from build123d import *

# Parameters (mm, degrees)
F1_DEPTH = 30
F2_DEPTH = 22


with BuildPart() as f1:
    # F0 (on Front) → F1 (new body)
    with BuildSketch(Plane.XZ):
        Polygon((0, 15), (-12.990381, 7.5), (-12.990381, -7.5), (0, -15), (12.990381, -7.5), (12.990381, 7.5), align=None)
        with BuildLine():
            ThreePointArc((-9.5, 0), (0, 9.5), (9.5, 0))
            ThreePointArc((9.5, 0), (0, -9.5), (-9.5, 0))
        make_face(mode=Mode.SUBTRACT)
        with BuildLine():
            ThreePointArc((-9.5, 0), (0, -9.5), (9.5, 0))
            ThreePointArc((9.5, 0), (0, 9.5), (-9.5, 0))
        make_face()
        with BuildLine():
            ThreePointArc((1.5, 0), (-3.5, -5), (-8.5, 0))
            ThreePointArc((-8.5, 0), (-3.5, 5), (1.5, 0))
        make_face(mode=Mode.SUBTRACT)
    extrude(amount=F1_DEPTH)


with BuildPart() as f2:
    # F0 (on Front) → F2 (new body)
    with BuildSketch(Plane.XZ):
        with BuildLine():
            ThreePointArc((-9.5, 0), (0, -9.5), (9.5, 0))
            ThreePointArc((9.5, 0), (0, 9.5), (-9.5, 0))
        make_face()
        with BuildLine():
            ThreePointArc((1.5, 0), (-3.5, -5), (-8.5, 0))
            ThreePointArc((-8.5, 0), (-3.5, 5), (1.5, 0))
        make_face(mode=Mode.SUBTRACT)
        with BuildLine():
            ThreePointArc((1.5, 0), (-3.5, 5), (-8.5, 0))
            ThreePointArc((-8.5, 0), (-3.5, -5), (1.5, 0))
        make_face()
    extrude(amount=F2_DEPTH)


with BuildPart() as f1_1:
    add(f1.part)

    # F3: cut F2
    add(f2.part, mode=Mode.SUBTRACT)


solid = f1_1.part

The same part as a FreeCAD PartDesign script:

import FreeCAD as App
import Part
import Sketcher

V = App.Vector
Q = App.Units.Quantity


def add_polygon(sketch, points):
    """Adds a closed chain of lines whose ends are joined by coincident constraints."""
    first, n = sketch.GeometryCount, len(points)
    for a, b in zip(points, points[1:] + points[:1]):
        sketch.addGeometry(Part.LineSegment(App.Vector(*a, 0), App.Vector(*b, 0)), False)
    for i in range(n):
        sketch.addConstraint(Sketcher.Constraint("Coincident", first + i, 2, first + (i + 1) % n, 1))

doc = App.newDocument("Part")
body = doc.addObject("PartDesign::Body", "Body")

# Sketch on XZ plane
sketch1 = body.newObject("Sketcher::SketchObject", "Sketch")
sketch1.AttachmentSupport = (doc.getObject("XZ_Plane"), [""])
sketch1.MapMode = "FlatFace"
add_polygon(sketch1, [(0, 15), (-13, 8), (-13, -8), (0, -15), (13, -8), (13, 8)])  # lines 0-5
sketch1.addGeometry(Part.Circle(V(-4, 0, 0), V(0, 0, 1), 5), False)  # 6
sketch1.addConstraint([
    Sketcher.Constraint("Vertical", 1),
    Sketcher.Constraint("Vertical", 4),
    Sketcher.Constraint("Symmetric", 0, 2, 3, 2, -1, 1),
    Sketcher.Constraint("Symmetric", 2, 2, 5, 2, -1, 1),
    Sketcher.Constraint("PointOnObject", 6, 3, -1),
    Sketcher.Constraint("PointOnObject", 2, 2, -2),
    Sketcher.Constraint("Parallel", 2, 5),
    Sketcher.Constraint("Horizontal", 1, 2, 3, 2),
    Sketcher.Constraint("Diameter", 6, 10.0),
    Sketcher.Constraint("DistanceY", 1, 2, 1, 1, 15.0),
    Sketcher.Constraint("Angle", 0, Q("-150 deg")),
    Sketcher.Constraint("Distance", 0, 15.0),
    Sketcher.Constraint("DistanceX", 6, 3, -1, 1, 3.5),
])
pad1 = body.newObject("PartDesign::Pad", "Pad")
pad1.Profile = sketch1
pad1.Length = 30
body2 = doc.addObject("PartDesign::Body", "Body001")

# Sketch on XZ plane
sketch2 = body2.newObject("Sketcher::SketchObject", "Sketch001")
sketch2.AttachmentSupport = (doc.getObject("XZ_Plane001"), [""])
sketch2.MapMode = "FlatFace"
sketch2.addGeometry(Part.Circle(V(0, 0, 0), V(0, 0, 1), 10), False)
sketch2.addConstraint([
    Sketcher.Constraint("Coincident", 0, 3, -1, 1),
    Sketcher.Constraint("Diameter", 0, 19.0),
])
pad2 = body2.newObject("PartDesign::Pad", "Pad001")
pad2.Profile = sketch2
pad2.Length = 22
doc.recompute()

boolean = body.newObject("PartDesign::Boolean", "Boolean")
boolean.Type = "Cut"
boolean.addObjects([body2])

doc.recompute()
